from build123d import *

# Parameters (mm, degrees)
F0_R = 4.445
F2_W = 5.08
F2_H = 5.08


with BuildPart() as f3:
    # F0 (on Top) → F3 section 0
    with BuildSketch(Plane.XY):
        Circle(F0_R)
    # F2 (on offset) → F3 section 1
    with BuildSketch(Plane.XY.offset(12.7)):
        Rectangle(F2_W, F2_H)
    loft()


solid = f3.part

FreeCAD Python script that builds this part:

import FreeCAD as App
import Part
import Sketcher
from FreeCAD import Vector
Q = App.Units.Quantity

doc = App.newDocument("Part")
body = doc.addObject("PartDesign::Body", "Body")

sketch1 = doc.addObject("Sketcher::SketchObject", "Sketch")
body.addObject(sketch1)
sketch1.AttachmentSupport = (doc.XY_Plane, [""])
sketch1.MapMode = "FlatFace"
sketch1.addGeometry(Part.Circle(Vector(0, 0, 0), Vector(0, 0, 1), 4.4), False)
sketch1.addConstraint(Sketcher.Constraint("Coincident", 0, 3, -1, 1))
sketch1.addConstraint(Sketcher.Constraint("Diameter", 0, Q("0.35 in")))

sketch2 = doc.addObject("Sketcher::SketchObject", "Sketch001")
body.addObject(sketch2)
sketch2.AttachmentSupport = (doc.XY_Plane, [""])
sketch2.MapMode = "FlatFace"
sketch2.AttachmentOffset = App.Placement(Vector(0, 0, 0.5 * 25.4), App.Rotation())
sketch2.addGeometry(Part.LineSegment(Vector(-3, 3, 0), Vector(-3, -3, 0)), False)
sketch2.addGeometry(Part.LineSegment(Vector(-3, -3, 0), Vector(3, -3, 0)), False)
sketch2.addGeometry(Part.LineSegment(Vector(3, -3, 0), Vector(3, 3, 0)), False)
sketch2.addGeometry(Part.LineSegment(Vector(3, 3, 0), Vector(-3, 3, 0)), False)
sketch2.addConstraint(Sketcher.Constraint("Coincident", 0, 2, 1, 1))
sketch2.addConstraint(Sketcher.Constraint("Coincident", 1, 2, 2, 1))
sketch2.addConstraint(Sketcher.Constraint("Coincident", 2, 2, 3, 1))
sketch2.addConstraint(Sketcher.Constraint("Coincident", 3, 2, 0, 1))
sketch2.addConstraint(Sketcher.Constraint("Vertical", 0))
sketch2.addConstraint(Sketcher.Constraint("Horizontal", 1))
sketch2.addConstraint(Sketcher.Constraint("Vertical", 2))
sketch2.addConstraint(Sketcher.Constraint("Horizontal", 3))
sketch2.addConstraint(Sketcher.Constraint("Symmetric", 0, 2, 2, 2, -1, 1))
sketch2.addConstraint(Sketcher.Constraint("Equal", 3, 0))
sketch2.addConstraint(Sketcher.Constraint("DistanceX", 1, 1, 1, 2, Q("0.2 in")))

additiveloft = doc.addObject("PartDesign::AdditiveLoft", "AdditiveLoft")
body.addObject(additiveloft)
additiveloft.Profile = sketch1
additiveloft.Sections = [sketch2]

doc.recompute()
